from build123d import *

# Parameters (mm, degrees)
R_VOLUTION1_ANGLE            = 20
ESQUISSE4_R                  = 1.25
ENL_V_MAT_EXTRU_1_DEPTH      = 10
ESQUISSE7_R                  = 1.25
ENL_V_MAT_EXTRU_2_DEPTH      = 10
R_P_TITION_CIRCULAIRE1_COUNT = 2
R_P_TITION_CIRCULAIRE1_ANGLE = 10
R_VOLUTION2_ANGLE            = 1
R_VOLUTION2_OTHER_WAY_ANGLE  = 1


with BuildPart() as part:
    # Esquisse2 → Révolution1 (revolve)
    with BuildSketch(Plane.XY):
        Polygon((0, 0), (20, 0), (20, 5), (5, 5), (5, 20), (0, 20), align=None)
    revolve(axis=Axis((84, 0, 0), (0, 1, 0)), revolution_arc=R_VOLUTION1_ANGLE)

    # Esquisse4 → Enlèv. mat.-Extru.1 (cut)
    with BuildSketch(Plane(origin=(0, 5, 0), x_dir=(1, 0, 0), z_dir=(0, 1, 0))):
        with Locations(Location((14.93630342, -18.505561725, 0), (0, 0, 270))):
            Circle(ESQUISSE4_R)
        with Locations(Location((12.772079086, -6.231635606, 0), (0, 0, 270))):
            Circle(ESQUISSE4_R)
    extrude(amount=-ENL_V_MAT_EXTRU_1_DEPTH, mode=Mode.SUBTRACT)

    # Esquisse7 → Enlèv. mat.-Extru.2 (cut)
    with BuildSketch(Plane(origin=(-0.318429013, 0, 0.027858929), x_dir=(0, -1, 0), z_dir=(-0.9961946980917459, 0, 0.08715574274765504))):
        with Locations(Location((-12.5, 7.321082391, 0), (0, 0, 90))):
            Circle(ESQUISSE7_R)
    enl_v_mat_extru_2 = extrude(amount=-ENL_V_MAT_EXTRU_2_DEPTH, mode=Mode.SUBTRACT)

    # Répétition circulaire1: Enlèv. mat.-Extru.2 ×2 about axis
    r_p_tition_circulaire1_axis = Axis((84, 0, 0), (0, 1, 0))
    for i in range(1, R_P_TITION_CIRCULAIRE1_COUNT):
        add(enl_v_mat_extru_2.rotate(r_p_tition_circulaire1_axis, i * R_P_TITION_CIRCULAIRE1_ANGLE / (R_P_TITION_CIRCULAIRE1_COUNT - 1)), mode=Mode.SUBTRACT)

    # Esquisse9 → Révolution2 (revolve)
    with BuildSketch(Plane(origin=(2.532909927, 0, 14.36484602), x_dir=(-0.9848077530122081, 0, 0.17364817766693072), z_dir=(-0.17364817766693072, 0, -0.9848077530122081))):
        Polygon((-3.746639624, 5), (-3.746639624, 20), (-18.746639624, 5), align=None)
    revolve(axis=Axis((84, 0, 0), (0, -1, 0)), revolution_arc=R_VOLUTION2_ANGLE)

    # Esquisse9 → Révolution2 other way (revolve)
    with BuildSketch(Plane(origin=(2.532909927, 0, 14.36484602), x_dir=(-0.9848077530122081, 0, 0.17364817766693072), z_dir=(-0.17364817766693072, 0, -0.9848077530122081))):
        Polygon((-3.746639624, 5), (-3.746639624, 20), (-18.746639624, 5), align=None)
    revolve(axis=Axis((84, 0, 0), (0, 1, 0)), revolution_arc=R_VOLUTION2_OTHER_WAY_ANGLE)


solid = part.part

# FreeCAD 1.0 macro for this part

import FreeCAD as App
import Part
import Sketcher

V = App.Vector

doc = App.newDocument("Part")
params = doc.addObject("Spreadsheet::Sheet", "Params")
for row, (alias, value) in enumerate([
    ("sketch1_width", "20 mm"),
    ("sketch1_width2", "15 mm"),
    ("revolution_angle", "20 deg"),
    ("sketch2_diameter", "2.5 mm"),
    ("pocket1_length", "10 mm"),
    ("sketch3_diameter", "2.5 mm"),
    ("pocket2_length", "10 mm"),
    ("sketch4_width", "15 mm"),
    ("revolution2_angle", "1 deg"),
    ("sketch5_width", "15 mm"),
    ("revolution3_angle", "1 deg"),
], start=1):
    params.set(f"A{row}", alias)
    params.set(f"B{row}", "=" + value)
    params.setAlias(f"B{row}", alias)

body = doc.addObject("PartDesign::Body", "Body")

sketch1 = doc.addObject("Sketcher::SketchObject", "Sketch")
body.addObject(sketch1)
sketch1.AttachmentSupport = (doc.XY_Plane, [""])
sketch1.MapMode = "FlatFace"
sketch1.addGeometry(Part.LineSegment(V(0, 0, 0), V(20, 0, 0)), False)
sketch1.addGeometry(Part.LineSegment(V(20, 0, 0), V(20, 5, 0)), False)
sketch1.addGeometry(Part.LineSegment(V(20, 5, 0), V(5, 5, 0)), False)
sketch1.addGeometry(Part.LineSegment(V(5, 5, 0), V(5, 20, 0)), False)
sketch1.addGeometry(Part.LineSegment(V(5, 20, 0), V(0, 20, 0)), False)
sketch1.addGeometry(Part.LineSegment(V(0, 20, 0), V(0, 0, 0)), False)
sketch1.addGeometry(Part.LineSegment(V(84, 0, 0), V(84, 20, 0)), True)
sketch1.addConstraint(Sketcher.Constraint("Coincident", 0, 2, 1, 1))
sketch1.addConstraint(Sketcher.Constraint("Coincident", 1, 2, 2, 1))
sketch1.addConstraint(Sketcher.Constraint("Coincident", 2, 2, 3, 1))
sketch1.addConstraint(Sketcher.Constraint("Coincident", 3, 2, 4, 1))
sketch1.addConstraint(Sketcher.Constraint("Coincident", 4, 2, 5, 1))
sketch1.addConstraint(Sketcher.Constraint("Coincident", 5, 2, 0, 1))
sketch1.addConstraint(Sketcher.Constraint("Horizontal", 0))
sketch1.addConstraint(Sketcher.Constraint("Vertical", 1))
sketch1.addConstraint(Sketcher.Constraint("Horizontal", 2))
sketch1.addConstraint(Sketcher.Constraint("Vertical", 3))
sketch1.addConstraint(Sketcher.Constraint("Horizontal", 4))
sketch1.addConstraint(Sketcher.Constraint("Vertical", 5))
sketch1.addConstraint(Sketcher.Constraint("Vertical", 6))
sketch1.addConstraint(Sketcher.Constraint("Coincident", 5, 2, -1, 1))
sketch1.addConstraint(Sketcher.Constraint("PointOnObject", 6, 1, -1))
sketch1.addConstraint(Sketcher.Constraint("Horizontal", 4, 2, 6, 2))
sketch1.addConstraint(Sketcher.Constraint("Equal", 4, 1))
sketch1.addConstraint(Sketcher.Constraint("Equal", 2, 3))
sketch1.addConstraint(Sketcher.Constraint("DistanceX", 0, 1, 0, 2, 20.0))
sketch1.addConstraint(Sketcher.Constraint("DistanceX", 2, 2, 2, 1, 15.0))
sketch1.addConstraint(Sketcher.Constraint("DistanceX", -1, 1, 6, 1, 84.0))
sketch1.setExpression("Constraints[18]", "Params.sketch1_width")
sketch1.setExpression("Constraints[19]", "Params.sketch1_width2")
revolution = doc.addObject("PartDesign::Revolution", "Revolution")
body.addObject(revolution)
revolution.Profile = sketch1
revolution.ReferenceAxis = (sketch1, ["Axis0"])
revolution.setExpression("Angle", "Params.revolution_angle")

sketch2 = doc.addObject("Sketcher::SketchObject", "Sketch001")
body.addObject(sketch2)
sketch2.AttachmentSupport = (doc.XZ_Plane, [""])
sketch2.MapMode = "FlatFace"
sketch2.AttachmentOffset = App.Placement(V(0, 0, -5), App.Rotation())
sketch2.addGeometry(Part.Circle(V(14.936303, 18.505562, 0), V(0, 0, 1), 1.25), False)
sketch2.addGeometry(Part.Circle(V(12.772079, 6.231636, 0), V(0, 0, 1), 1.25), False)
sketch2.addConstraint(Sketcher.Constraint("Equal", 0, 1))
sketch2.addConstraint(Sketcher.Constraint("Diameter", 0, 2.5))
sketch2.addConstraint(Sketcher.Constraint("DistanceY", -1, 1, 0, 3, 18.505562))
sketch2.addConstraint(Sketcher.Constraint("DistanceX", -1, 1, 1, 3, 12.772079))
sketch2.addConstraint(Sketcher.Constraint("DistanceX", -1, 1, 0, 3, 14.936303))
sketch2.addConstraint(Sketcher.Constraint("DistanceY", -1, 1, 1, 3, 6.231636))
sketch2.setExpression("Constraints[1]", "Params.sketch2_diameter")
pocket1 = doc.addObject("PartDesign::Pocket", "Pocket")
body.addObject(pocket1)
pocket1.Profile = sketch2
pocket1.setExpression("Length", "Params.pocket1_length")
pocket1.Reversed = True

sketch3 = doc.addObject("Sketcher::SketchObject", "Sketch002")
body.addObject(sketch3)
sketch3.Placement = App.Placement(V(-0.318429, 0, 0.027859), App.Rotation(V(0, -1, 0), V(0.087155743, 0, 0.996194698), V(-0.996194698, 0, 0.087155743), "ZXY"))
sketch3.addGeometry(Part.Circle(V(-12.5, 7.321082, 0), V(0, 0, 1), 1.25), False)
sketch3.addConstraint(Sketcher.Constraint("Diameter", 0, 2.5))
sketch3.addConstraint(Sketcher.Constraint("DistanceX", 0, 3, -1, 1, 12.5))
sketch3.addConstraint(Sketcher.Constraint("DistanceY", -1, 1, 0, 3, 7.321082))
sketch3.setExpression("Constraints[0]", "Params.sketch3_diameter")
pocket2 = doc.addObject("PartDesign::Pocket", "Pocket001")
body.addObject(pocket2)
pocket2.Profile = sketch3
pocket2.setExpression("Length", "Params.pocket2_length")
doc.recompute()

datumline = doc.addObject("PartDesign::Line", "DatumLine")
body.addObject(datumline)
datumline.Placement = App.Placement(V(84, 0, 0), App.Rotation(V(0, 0, 1), V(0, 1, 0)))
polarpattern = doc.addObject("PartDesign::PolarPattern", "PolarPattern")
body.addObject(polarpattern)
polarpattern.Originals = [pocket2]
polarpattern.Axis = (datumline, [""])
polarpattern.Angle = 10
polarpattern.Occurrences = 2
body.Tip = polarpattern

sketch4 = doc.addObject("Sketcher::SketchObject", "Sketch003")
body.addObject(sketch4)
sketch4.Placement = App.Placement(V(2.53291, 0, 14.364846), App.Rotation(V(-0.984807753, 0, 0.173648178), V(0, 1, 0), V(-0.173648178, 0, -0.984807753), "ZXY"))
sketch4.addGeometry(Part.LineSegment(V(-3.74664, 5, 0), V(-3.74664, 20, 0)), False)
sketch4.addGeometry(Part.LineSegment(V(-3.74664, 20, 0), V(-18.74664, 5, 0)), False)
sketch4.addGeometry(Part.LineSegment(V(-18.74664, 5, 0), V(-3.74664, 5, 0)), False)
sketch4.addGeometry(Part.LineSegment(V(-82.723851, 20, 0), V(-82.723851, 5, 0)), True)
sketch4.addConstraint(Sketcher.Constraint("Coincident", 0, 2, 1, 1))
sketch4.addConstraint(Sketcher.Constraint("Coincident", 1, 2, 2, 1))
sketch4.addConstraint(Sketcher.Constraint("Coincident", 2, 2, 0, 1))
sketch4.addConstraint(Sketcher.Constraint("Vertical", 0))
sketch4.addConstraint(Sketcher.Constraint("Horizontal", 2))
sketch4.addConstraint(Sketcher.Constraint("Vertical", 3))
sketch4.addConstraint(Sketcher.Constraint("Horizontal", 0, 2, 3, 1))
sketch4.addConstraint(Sketcher.Constraint("Horizontal", 2, 2, 3, 2))
sketch4.addConstraint(Sketcher.Constraint("Equal", 2, 0))
sketch4.addConstraint(Sketcher.Constraint("DistanceX", 2, 1, 2, 2, 15.0))
sketch4.addConstraint(Sketcher.Constraint("DistanceY", -1, 1, 0, 2, 20.0))
sketch4.addConstraint(Sketcher.Constraint("DistanceX", 0, 2, -1, 1, 3.74664))
sketch4.addConstraint(Sketcher.Constraint("DistanceX", 3, 1, -1, 1, 82.723851))
sketch4.setExpression("Constraints[9]", "Params.sketch4_width")
revolution2 = doc.addObject("PartDesign::Revolution", "Revolution001")
body.addObject(revolution2)
revolution2.Profile = sketch4
revolution2.ReferenceAxis = (sketch4, ["Axis0"])
revolution2.setExpression("Angle", "Params.revolution2_angle")

sketch5 = doc.addObject("Sketcher::SketchObject", "Sketch004")
body.addObject(sketch5)
sketch5.Placement = App.Placement(V(2.53291, 0, 14.364846), App.Rotation(V(-0.984807753, 0, 0.173648178), V(0, 1, 0), V(-0.173648178, 0, -0.984807753), "ZXY"))
sketch5.addGeometry(Part.LineSegment(V(-3.74664, 5, 0), V(-3.74664, 20, 0)), False)
sketch5.addGeometry(Part.LineSegment(V(-3.74664, 20, 0), V(-18.74664, 5, 0)), False)
sketch5.addGeometry(Part.LineSegment(V(-18.74664, 5, 0), V(-3.74664, 5, 0)), False)
sketch5.addGeometry(Part.LineSegment(V(-82.723851, 5, 0), V(-82.723851, 20, 0)), True)
sketch5.addConstraint(Sketcher.Constraint("Coincident", 0, 2, 1, 1))
sketch5.addConstraint(Sketcher.Constraint("Coincident", 1, 2, 2, 1))
sketch5.addConstraint(Sketcher.Constraint("Coincident", 2, 2, 0, 1))
sketch5.addConstraint(Sketcher.Constraint("Vertical", 0))
sketch5.addConstraint(Sketcher.Constraint("Horizontal", 2))
sketch5.addConstraint(Sketcher.Constraint("Vertical", 3))
sketch5.addConstraint(Sketcher.Constraint("Horizontal", 2, 2, 3, 1))
sketch5.addConstraint(Sketcher.Constraint("Horizontal", 0, 2, 3, 2))
sketch5.addConstraint(Sketcher.Constraint("Equal", 2, 0))
sketch5.addConstraint(Sketcher.Constraint("DistanceX", 2, 1, 2, 2, 15.0))
sketch5.addConstraint(Sketcher.Constraint("DistanceY", -1, 1, 0, 2, 20.0))
sketch5.addConstraint(Sketcher.Constraint("DistanceX", 0, 2, -1, 1, 3.74664))
sketch5.addConstraint(Sketcher.Constraint("DistanceX", 3, 1, -1, 1, 82.723851))
sketch5.setExpression("Constraints[9]", "Params.sketch5_width")
revolution3 = doc.addObject("PartDesign::Revolution", "Revolution002")
body.addObject(revolution3)
revolution3.Profile = sketch5
revolution3.ReferenceAxis = (sketch5, ["Axis0"])
revolution3.setExpression("Angle", "Params.revolution3_angle")

doc.recompute()
